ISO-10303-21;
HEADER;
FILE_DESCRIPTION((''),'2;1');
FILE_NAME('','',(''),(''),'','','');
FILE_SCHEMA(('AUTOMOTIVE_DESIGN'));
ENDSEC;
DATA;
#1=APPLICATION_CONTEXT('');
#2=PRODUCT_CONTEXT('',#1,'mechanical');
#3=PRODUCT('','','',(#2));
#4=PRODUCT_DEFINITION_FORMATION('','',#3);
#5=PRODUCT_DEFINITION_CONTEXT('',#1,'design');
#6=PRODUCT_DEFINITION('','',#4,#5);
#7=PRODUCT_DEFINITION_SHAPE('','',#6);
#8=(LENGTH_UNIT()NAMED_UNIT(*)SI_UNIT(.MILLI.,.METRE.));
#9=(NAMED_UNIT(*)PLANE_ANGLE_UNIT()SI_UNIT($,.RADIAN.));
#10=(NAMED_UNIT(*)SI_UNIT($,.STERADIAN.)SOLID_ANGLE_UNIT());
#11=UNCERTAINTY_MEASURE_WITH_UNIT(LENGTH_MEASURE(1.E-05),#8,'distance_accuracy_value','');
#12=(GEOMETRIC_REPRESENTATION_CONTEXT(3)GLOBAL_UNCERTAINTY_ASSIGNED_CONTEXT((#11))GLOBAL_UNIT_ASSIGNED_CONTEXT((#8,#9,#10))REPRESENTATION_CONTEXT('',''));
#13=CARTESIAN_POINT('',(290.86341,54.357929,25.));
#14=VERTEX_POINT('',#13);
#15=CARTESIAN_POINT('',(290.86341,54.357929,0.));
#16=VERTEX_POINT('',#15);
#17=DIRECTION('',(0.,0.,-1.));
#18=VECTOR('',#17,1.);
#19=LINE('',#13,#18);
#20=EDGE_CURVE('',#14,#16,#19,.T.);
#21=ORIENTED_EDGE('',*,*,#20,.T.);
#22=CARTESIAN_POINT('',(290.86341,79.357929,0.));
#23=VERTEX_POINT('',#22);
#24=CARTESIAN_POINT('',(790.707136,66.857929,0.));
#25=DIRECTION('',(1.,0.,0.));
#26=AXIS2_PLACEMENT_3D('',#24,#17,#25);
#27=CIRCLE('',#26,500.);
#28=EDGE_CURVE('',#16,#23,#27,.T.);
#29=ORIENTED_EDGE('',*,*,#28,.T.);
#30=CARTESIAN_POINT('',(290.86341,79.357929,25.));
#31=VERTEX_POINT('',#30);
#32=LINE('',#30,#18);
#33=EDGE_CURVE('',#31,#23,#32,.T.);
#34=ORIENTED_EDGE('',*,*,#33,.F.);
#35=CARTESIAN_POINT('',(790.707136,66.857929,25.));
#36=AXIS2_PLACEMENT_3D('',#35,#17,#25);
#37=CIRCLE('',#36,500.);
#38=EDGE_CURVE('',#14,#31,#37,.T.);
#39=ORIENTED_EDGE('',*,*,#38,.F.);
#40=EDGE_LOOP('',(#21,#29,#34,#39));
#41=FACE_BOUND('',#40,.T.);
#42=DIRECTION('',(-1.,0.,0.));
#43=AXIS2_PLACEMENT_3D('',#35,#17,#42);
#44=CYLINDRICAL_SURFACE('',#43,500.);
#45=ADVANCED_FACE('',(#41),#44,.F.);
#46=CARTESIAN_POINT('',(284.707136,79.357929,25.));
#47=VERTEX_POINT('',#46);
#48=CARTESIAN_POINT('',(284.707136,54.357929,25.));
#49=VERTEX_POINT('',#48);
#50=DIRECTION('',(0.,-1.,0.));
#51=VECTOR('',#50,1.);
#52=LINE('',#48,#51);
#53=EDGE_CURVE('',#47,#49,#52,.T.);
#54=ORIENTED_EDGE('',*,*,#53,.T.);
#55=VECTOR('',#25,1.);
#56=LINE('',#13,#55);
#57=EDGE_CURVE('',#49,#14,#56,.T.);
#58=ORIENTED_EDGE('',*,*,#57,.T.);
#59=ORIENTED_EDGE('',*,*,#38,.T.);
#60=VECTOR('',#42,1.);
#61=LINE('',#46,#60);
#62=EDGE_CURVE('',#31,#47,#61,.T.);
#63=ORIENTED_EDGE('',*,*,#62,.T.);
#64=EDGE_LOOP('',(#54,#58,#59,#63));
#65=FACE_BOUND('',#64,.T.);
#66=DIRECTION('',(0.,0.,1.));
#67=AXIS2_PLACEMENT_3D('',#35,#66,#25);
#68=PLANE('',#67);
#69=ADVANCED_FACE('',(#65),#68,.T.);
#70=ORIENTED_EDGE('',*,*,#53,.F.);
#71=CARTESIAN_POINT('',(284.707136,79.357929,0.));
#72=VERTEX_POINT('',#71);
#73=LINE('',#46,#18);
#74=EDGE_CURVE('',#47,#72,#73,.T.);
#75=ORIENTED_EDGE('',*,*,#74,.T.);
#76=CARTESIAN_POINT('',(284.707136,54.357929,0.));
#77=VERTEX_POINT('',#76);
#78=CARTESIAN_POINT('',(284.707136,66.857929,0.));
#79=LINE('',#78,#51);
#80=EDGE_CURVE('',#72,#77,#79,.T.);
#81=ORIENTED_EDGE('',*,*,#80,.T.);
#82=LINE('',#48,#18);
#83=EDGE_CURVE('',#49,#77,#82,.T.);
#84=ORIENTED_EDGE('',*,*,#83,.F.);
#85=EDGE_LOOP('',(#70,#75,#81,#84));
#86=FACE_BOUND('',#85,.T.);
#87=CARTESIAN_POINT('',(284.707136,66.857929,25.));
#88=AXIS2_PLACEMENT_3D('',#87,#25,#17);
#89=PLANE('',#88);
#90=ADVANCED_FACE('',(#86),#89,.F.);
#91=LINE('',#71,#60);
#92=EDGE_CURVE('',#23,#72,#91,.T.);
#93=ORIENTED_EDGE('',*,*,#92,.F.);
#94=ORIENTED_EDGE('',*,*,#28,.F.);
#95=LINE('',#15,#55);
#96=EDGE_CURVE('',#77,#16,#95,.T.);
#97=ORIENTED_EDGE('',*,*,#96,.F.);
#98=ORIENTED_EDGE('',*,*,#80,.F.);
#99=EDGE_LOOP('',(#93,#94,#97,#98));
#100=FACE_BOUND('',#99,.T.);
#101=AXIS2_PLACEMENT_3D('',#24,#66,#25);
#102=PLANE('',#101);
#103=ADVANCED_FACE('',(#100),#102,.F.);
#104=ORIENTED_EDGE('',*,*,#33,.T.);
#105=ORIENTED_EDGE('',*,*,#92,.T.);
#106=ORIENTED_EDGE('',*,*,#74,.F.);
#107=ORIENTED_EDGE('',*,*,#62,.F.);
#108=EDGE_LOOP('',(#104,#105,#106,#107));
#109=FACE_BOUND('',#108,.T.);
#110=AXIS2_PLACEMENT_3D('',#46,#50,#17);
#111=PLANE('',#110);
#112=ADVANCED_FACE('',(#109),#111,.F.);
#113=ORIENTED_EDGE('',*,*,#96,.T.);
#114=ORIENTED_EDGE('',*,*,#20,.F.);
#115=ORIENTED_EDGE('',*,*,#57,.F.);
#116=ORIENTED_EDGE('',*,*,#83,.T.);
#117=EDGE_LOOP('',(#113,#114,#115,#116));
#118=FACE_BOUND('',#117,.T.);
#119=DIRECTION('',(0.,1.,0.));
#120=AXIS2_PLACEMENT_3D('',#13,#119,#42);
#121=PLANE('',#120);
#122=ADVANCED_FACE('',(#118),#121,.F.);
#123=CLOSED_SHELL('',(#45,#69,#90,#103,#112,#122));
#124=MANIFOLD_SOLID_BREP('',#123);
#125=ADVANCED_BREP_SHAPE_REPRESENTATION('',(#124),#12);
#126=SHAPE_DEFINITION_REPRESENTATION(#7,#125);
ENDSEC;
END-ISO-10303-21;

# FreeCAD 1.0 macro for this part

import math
import FreeCAD as App
import Part
import Sketcher

doc = App.newDocument("Part")
body = doc.addObject("PartDesign::Body", "Body")

sketch1 = body.newObject("Sketcher::SketchObject", "Sketch")
sketch1.AttachmentSupport = (doc.getObject("XY_Plane"), [""])
sketch1.MapMode = "FlatFace"
sketch1.addGeometry([
    Part.LineSegment(App.Vector(291, 79, 0), App.Vector(285, 79, 0)),
    Part.LineSegment(App.Vector(285, 79, 0), App.Vector(285, 54, 0)),
    Part.LineSegment(App.Vector(285, 54, 0), App.Vector(291, 54, 0)),
    Part.ArcOfCircle(Part.Circle(App.Vector(791, 67, 0), App.Vector(0, 0, 1), 500), math.radians(178.57), math.radians(181.43)),
], False)
sketch1.addConstraint([
    Sketcher.Constraint("Coincident", 0, 2, 1, 1),
    Sketcher.Constraint("Coincident", 1, 2, 2, 1),
    Sketcher.Constraint("Coincident", 2, 2, 3, 2),
    Sketcher.Constraint("Coincident", 3, 1, 0, 1),
    Sketcher.Constraint("Horizontal", 0),
    Sketcher.Constraint("Vertical", 1),
    Sketcher.Constraint("Horizontal", 2),
    Sketcher.Constraint("Vertical", 2, 2, 3, 1),
    Sketcher.Constraint("DistanceY", 1, 2, 1, 1, 25.0),
    Sketcher.Constraint("Radius", 3, 500.000002),
    Sketcher.Constraint("DistanceX", 0, 2, 0, 1, 6.156274),
    Sketcher.Constraint("DistanceY", -1, 1, 3, 3, 66.857929),
    Sketcher.Constraint("DistanceX", -1, 1, 2, 2, 290.86341),
])
pad1 = body.newObject("PartDesign::Pad", "Pad")
pad1.Profile = sketch1
pad1.Length = 25

doc.recompute()
